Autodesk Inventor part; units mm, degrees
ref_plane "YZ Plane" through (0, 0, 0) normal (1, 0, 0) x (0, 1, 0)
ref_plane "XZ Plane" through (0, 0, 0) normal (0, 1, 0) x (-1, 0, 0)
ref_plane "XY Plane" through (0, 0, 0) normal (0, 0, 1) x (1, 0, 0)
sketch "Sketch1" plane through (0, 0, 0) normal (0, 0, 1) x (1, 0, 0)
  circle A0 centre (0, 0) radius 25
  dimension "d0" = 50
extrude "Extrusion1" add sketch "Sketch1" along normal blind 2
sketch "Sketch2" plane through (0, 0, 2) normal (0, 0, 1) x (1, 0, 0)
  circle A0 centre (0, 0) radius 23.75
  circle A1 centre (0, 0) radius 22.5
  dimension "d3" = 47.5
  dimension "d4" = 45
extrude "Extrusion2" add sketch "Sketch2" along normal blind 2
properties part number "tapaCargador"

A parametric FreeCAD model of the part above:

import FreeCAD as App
import Part
import Sketcher
from FreeCAD import Vector

doc = App.newDocument("Part")
params = doc.addObject("Spreadsheet::Sheet", "Params")
for row, (alias, value) in enumerate([
    ("sketch1_diameter", "50 mm"),
    ("pad1_length", "2 mm"),
    ("sketch2_diameter", "45 mm"),
    ("sketch2_diameter2", "47.5 mm"),
    ("pad2_length", "2 mm"),
], start=1):
    params.set(f"A{row}", alias)
    params.set(f"B{row}", "=" + value)
    params.setAlias(f"B{row}", alias)

body = doc.addObject("PartDesign::Body", "Body")

# Sketch on XY plane
sketch1 = body.newObject("Sketcher::SketchObject", "Sketch")
sketch1.AttachmentSupport = (doc.getObject("XY_Plane"), [""])
sketch1.MapMode = "FlatFace"
sketch1.addGeometry(Part.Circle(Vector(0, 0, 0), Vector(0, 0, 1), 25), False)
sketch1.addConstraint([
    Sketcher.Constraint("Coincident", 0, 3, -1, 1),
    Sketcher.Constraint("Diameter", 0, 50.0),
])
sketch1.setExpression("Constraints[1]", "Params.sketch1_diameter")
pad1 = body.newObject("PartDesign::Pad", "Pad")
pad1.Profile = sketch1
pad1.setExpression("Length", "Params.pad1_length")

# Sketch on XY plane
sketch2 = body.newObject("Sketcher::SketchObject", "Sketch001")
sketch2.AttachmentSupport = (doc.getObject("XY_Plane"), [""])
sketch2.MapMode = "FlatFace"
sketch2.AttachmentOffset = App.Placement(Vector(0, 0, 2), App.Rotation())
sketch2.addGeometry([
    Part.Circle(Vector(0, 0, 0), Vector(0, 0, 1), 24),
    Part.Circle(Vector(0, 0, 0), Vector(0, 0, 1), 22),
], False)
sketch2.addConstraint([
    Sketcher.Constraint("Coincident", 0, 3, -1, 1),
    Sketcher.Constraint("Coincident", 1, 3, -1, 1),
    Sketcher.Constraint("Diameter", 1, 45.0),
    Sketcher.Constraint("Diameter", 0, 47.5),
])
sketch2.setExpression("Constraints[2]", "Params.sketch2_diameter")
sketch2.setExpression("Constraints[3]", "Params.sketch2_diameter2")
pad2 = body.newObject("PartDesign::Pad", "Pad001")
pad2.Profile = sketch2
pad2.setExpression("Length", "Params.pad2_length")

doc.recompute()
